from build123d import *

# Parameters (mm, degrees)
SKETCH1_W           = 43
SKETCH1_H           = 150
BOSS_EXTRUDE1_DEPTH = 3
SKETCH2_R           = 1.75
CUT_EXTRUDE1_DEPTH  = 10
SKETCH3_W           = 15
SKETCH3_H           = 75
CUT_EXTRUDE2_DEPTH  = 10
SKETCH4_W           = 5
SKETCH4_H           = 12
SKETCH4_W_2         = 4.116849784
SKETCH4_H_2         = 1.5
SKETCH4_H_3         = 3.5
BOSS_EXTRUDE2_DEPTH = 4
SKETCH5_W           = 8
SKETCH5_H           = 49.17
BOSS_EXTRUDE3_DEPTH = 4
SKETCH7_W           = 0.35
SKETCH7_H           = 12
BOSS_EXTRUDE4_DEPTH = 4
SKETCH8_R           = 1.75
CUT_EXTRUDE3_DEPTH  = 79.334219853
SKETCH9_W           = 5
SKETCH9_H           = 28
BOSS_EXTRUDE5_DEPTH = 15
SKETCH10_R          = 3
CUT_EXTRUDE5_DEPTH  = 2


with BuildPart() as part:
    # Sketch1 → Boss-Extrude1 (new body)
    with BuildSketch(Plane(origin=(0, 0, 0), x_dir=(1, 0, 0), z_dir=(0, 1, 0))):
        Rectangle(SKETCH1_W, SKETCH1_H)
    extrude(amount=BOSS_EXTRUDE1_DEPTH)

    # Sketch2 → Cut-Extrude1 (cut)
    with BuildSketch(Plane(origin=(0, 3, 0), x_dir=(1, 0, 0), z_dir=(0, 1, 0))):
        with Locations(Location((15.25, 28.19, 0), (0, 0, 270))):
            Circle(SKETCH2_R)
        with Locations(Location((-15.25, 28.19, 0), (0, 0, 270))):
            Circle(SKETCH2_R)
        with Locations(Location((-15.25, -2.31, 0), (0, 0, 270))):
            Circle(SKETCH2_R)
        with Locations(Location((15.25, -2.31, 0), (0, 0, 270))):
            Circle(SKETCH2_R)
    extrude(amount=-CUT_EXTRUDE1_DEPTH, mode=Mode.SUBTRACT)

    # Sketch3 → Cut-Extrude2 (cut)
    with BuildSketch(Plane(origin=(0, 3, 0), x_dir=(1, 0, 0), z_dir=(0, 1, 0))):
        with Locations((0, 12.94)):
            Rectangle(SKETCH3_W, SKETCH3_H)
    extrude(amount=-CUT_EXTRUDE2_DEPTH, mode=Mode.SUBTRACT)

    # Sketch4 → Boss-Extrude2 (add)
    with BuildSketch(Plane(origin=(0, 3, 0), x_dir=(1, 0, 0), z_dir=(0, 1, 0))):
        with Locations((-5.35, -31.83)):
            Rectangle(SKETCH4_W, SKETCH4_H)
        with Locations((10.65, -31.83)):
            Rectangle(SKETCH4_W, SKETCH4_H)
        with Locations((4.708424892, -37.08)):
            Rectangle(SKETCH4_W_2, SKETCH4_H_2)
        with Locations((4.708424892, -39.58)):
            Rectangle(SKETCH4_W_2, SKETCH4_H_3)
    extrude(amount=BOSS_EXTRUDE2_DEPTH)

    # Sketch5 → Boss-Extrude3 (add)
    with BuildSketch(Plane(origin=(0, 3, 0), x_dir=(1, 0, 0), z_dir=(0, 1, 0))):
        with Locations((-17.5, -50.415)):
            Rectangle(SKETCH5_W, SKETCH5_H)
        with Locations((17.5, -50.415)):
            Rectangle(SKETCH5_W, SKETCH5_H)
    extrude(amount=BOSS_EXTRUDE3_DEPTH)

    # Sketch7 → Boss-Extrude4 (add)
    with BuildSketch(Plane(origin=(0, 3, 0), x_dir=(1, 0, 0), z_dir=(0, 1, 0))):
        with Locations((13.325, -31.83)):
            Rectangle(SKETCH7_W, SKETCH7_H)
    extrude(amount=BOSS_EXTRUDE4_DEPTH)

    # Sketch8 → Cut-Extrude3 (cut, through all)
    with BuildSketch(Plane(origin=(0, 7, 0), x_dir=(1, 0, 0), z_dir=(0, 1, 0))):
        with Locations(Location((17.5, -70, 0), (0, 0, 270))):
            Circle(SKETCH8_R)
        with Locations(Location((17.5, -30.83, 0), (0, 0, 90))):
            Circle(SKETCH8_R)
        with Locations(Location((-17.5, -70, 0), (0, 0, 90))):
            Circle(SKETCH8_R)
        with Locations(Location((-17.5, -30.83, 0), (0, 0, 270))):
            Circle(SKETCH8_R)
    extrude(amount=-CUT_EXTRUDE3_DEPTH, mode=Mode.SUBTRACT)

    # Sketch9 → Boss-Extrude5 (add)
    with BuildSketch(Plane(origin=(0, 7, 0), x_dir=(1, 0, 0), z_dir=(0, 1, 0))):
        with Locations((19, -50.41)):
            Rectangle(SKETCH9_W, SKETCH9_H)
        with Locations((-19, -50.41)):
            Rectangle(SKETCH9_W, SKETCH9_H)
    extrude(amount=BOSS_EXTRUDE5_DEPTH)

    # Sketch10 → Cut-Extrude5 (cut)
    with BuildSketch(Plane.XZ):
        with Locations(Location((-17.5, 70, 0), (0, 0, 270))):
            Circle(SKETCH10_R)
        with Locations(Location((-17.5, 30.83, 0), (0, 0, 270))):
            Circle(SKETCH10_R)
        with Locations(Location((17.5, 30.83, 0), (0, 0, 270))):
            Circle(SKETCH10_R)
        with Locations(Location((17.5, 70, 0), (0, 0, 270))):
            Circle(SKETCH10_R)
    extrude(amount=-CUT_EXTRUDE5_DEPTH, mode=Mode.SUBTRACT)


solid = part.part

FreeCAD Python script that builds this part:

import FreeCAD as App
import Part
import Sketcher
from FreeCAD import Vector
Q = App.Units.Quantity

doc = App.newDocument("Part")
params = doc.addObject("Spreadsheet::Sheet", "Params")
for row, (alias, value) in enumerate([
    ("sketch1_width", "43 mm"),
    ("sketch1_height", "150 mm"),
    ("pad1_length", "3 mm"),
    ("sketch2_diameter", "3.5 mm"),
    ("pocket1_length", "10 mm"),
    ("sketch3_width", "15 mm"),
    ("sketch3_height", "75 mm"),
    ("pocket2_length", "10 mm"),
    ("sketch4_width", "5 mm"),
    ("sketch4_height", "12 mm"),
    ("pad2_length", "4 mm"),
    ("sketch5_width", "8 mm"),
    ("sketch5_height", "49.17 mm"),
    ("pad3_length", "4 mm"),
    ("sketch6_height", "12 mm"),
    ("sketch6_width", "0.35 mm"),
    ("pad4_length", "4 mm"),
    ("sketch7_diameter", "3.5 mm"),
    ("sketch8_width", "5 mm"),
    ("sketch8_height", "28 mm"),
    ("pad5_length", "15 mm"),
    ("sketch9_diameter", "6 mm"),
    ("pocket4_length", "2 mm"),
], start=1):
    params.set(f"A{row}", alias)
    params.set(f"B{row}", "=" + value)
    params.setAlias(f"B{row}", alias)

body = doc.addObject("PartDesign::Body", "Body")

# Sketch on XZ plane
sketch1 = doc.addObject("Sketcher::SketchObject", "Sketch")
body.addObject(sketch1)
sketch1.AttachmentSupport = (doc.XZ_Plane, [""])
sketch1.MapMode = "FlatFace"
sketch1.addGeometry([
    Part.LineSegment(Vector(-21.5, -75, 0), Vector(-21.5, 75, 0)),
    Part.LineSegment(Vector(-21.5, 75, 0), Vector(21.5, 75, 0)),
    Part.LineSegment(Vector(21.5, 75, 0), Vector(21.5, -75, 0)),
    Part.LineSegment(Vector(21.5, -75, 0), Vector(-21.5, -75, 0)),
], False)
sketch1.addConstraint([
    Sketcher.Constraint("Coincident", 0, 2, 1, 1),
    Sketcher.Constraint("Coincident", 1, 2, 2, 1),
    Sketcher.Constraint("Coincident", 2, 2, 3, 1),
    Sketcher.Constraint("Coincident", 3, 2, 0, 1),
    Sketcher.Constraint("Vertical", 0),
    Sketcher.Constraint("Horizontal", 1),
    Sketcher.Constraint("Vertical", 2),
    Sketcher.Constraint("Horizontal", 3),
    Sketcher.Constraint("Symmetric", 0, 2, 2, 2, -1, 1),
    Sketcher.Constraint("DistanceX", 1, 1, 1, 2, Q("43 mm")),
    Sketcher.Constraint("DistanceY", 0, 1, 0, 2, Q("150 mm")),
])
sketch1.setExpression("Constraints[9]", "Params.sketch1_width")
sketch1.setExpression("Constraints[10]", "Params.sketch1_height")
pad1 = doc.addObject("PartDesign::Pad", "Pad")
body.addObject(pad1)
pad1.Profile = sketch1
pad1.setExpression("Length", "Params.pad1_length")
pad1.Reversed = True

# Sketch on XZ plane
sketch2 = doc.addObject("Sketcher::SketchObject", "Sketch001")
body.addObject(sketch2)
sketch2.AttachmentSupport = (doc.XZ_Plane, [""])
sketch2.MapMode = "FlatFace"
sketch2.AttachmentOffset = App.Placement(Vector(0, 0, -3), App.Rotation())
sketch2.addGeometry([
    Part.Circle(Vector(15.25, -28.19, 0), Vector(0, 0, 1), 1.75),
    Part.Circle(Vector(-15.25, -28.19, 0), Vector(0, 0, 1), 1.75),
    Part.Circle(Vector(-15.25, 2.31, 0), Vector(0, 0, 1), 1.75),
    Part.Circle(Vector(15.25, 2.31, 0), Vector(0, 0, 1), 1.75),
], False)
sketch2.addConstraint([
    Sketcher.Constraint("Equal", 0, 1),
    Sketcher.Constraint("Equal", 1, 2),
    Sketcher.Constraint("Equal", 2, 3),
    Sketcher.Constraint("Symmetric", 0, 3, 1, 3, -2),
    Sketcher.Constraint("Symmetric", 2, 3, 3, 3, -2),
    Sketcher.Constraint("Vertical", 1, 3, 2, 3),
    Sketcher.Constraint("Diameter", 0, Q("3.5 mm")),
    Sketcher.Constraint("DistanceX", 1, 3, 0, 3, Q("30.5 mm")),
    Sketcher.Constraint("DistanceY", 1, 3, 2, 3, Q("30.5 mm")),
    Sketcher.Constraint("DistanceY", 0, 3, -1, 1, Q("28.19 mm")),
])
sketch2.setExpression("Constraints[6]", "Params.sketch2_diameter")
pocket1 = doc.addObject("PartDesign::Pocket", "Pocket")
body.addObject(pocket1)
pocket1.Profile = sketch2
pocket1.setExpression("Length", "Params.pocket1_length")
pocket1.Reversed = True

# Sketch on XZ plane
sketch3 = doc.addObject("Sketcher::SketchObject", "Sketch002")
body.addObject(sketch3)
sketch3.AttachmentSupport = (doc.XZ_Plane, [""])
sketch3.MapMode = "FlatFace"
sketch3.AttachmentOffset = App.Placement(Vector(0, 0, -3), App.Rotation())
sketch3.addGeometry([
    Part.LineSegment(Vector(-7.5, -50.44, 0), Vector(-7.5, 24.56, 0)),
    Part.LineSegment(Vector(-7.5, 24.56, 0), Vector(7.5, 24.56, 0)),
    Part.LineSegment(Vector(7.5, 24.56, 0), Vector(7.5, -50.44, 0)),
    Part.LineSegment(Vector(7.5, -50.44, 0), Vector(-7.5, -50.44, 0)),
], False)
sketch3.addConstraint([
    Sketcher.Constraint("Coincident", 0, 2, 1, 1),
    Sketcher.Constraint("Coincident", 1, 2, 2, 1),
    Sketcher.Constraint("Coincident", 2, 2, 3, 1),
    Sketcher.Constraint("Coincident", 3, 2, 0, 1),
    Sketcher.Constraint("Vertical", 0),
    Sketcher.Constraint("Horizontal", 1),
    Sketcher.Constraint("Vertical", 2),
    Sketcher.Constraint("Horizontal", 3),
    Sketcher.Constraint("DistanceX", 1, 1, 1, 2, Q("15 mm")),
    Sketcher.Constraint("DistanceY", 0, 1, 0, 2, Q("75 mm")),
    Sketcher.Constraint("DistanceX", 0, 2, -1, 1, Q("7.5 mm")),
    Sketcher.Constraint("DistanceY", -1, 1, 0, 2, Q("24.56 mm")),
])
sketch3.setExpression("Constraints[8]", "Params.sketch3_width")
sketch3.setExpression("Constraints[9]", "Params.sketch3_height")
pocket2 = doc.addObject("PartDesign::Pocket", "Pocket001")
body.addObject(pocket2)
pocket2.Profile = sketch3
pocket2.setExpression("Length", "Params.pocket2_length")
pocket2.Reversed = True

# Sketch on XZ plane
sketch4 = doc.addObject("Sketcher::SketchObject", "Sketch003")
body.addObject(sketch4)
sketch4.AttachmentSupport = (doc.XZ_Plane, [""])
sketch4.MapMode = "FlatFace"
sketch4.AttachmentOffset = App.Placement(Vector(0, 0, -3), App.Rotation())
sketch4.addGeometry([
    Part.LineSegment(Vector(-7.85, 25.83, 0), Vector(-7.85, 37.83, 0)),  # 0
    Part.LineSegment(Vector(-7.85, 37.83, 0), Vector(-2.85, 37.83, 0)),  # 1
    Part.LineSegment(Vector(-2.85, 37.83, 0), Vector(-2.85, 25.83, 0)),  # 2
    Part.LineSegment(Vector(-2.85, 25.83, 0), Vector(-7.85, 25.83, 0)),  # 3
    Part.LineSegment(Vector(8.15, 25.83, 0), Vector(8.15, 37.83, 0)),  # 4
    Part.LineSegment(Vector(8.15, 37.83, 0), Vector(13.15, 37.83, 0)),  # 5
    Part.LineSegment(Vector(13.15, 37.83, 0), Vector(13.15, 25.83, 0)),  # 6
    Part.LineSegment(Vector(13.15, 25.83, 0), Vector(8.15, 25.83, 0)),  # 7
    Part.LineSegment(Vector(2.65, 36.33, 0), Vector(2.65, 41.33, 0)),  # 8
    Part.LineSegment(Vector(2.65, 41.33, 0), Vector(6.76685, 41.33, 0)),  # 9
    Part.LineSegment(Vector(6.76685, 41.33, 0), Vector(6.76685, 36.33, 0)),  # 10
    Part.LineSegment(Vector(6.76685, 36.33, 0), Vector(2.65, 36.33, 0)),  # 11
], False)
sketch4.addConstraint([
    Sketcher.Constraint("Coincident", 0, 2, 1, 1),
    Sketcher.Constraint("Coincident", 1, 2, 2, 1),
    Sketcher.Constraint("Coincident", 2, 2, 3, 1),
    Sketcher.Constraint("Coincident", 3, 2, 0, 1),
    Sketcher.Constraint("Coincident", 4, 2, 5, 1),
    Sketcher.Constraint("Coincident", 5, 2, 6, 1),
    Sketcher.Constraint("Coincident", 6, 2, 7, 1),
    Sketcher.Constraint("Coincident", 7, 2, 4, 1),
    Sketcher.Constraint("Coincident", 8, 2, 9, 1),
    Sketcher.Constraint("Coincident", 9, 2, 10, 1),
    Sketcher.Constraint("Coincident", 10, 2, 11, 1),
    Sketcher.Constraint("Coincident", 11, 2, 8, 1),
    Sketcher.Constraint("Vertical", 0),
    Sketcher.Constraint("Horizontal", 1),
    Sketcher.Constraint("Vertical", 2),
    Sketcher.Constraint("Horizontal", 3),
    Sketcher.Constraint("Vertical", 4),
    Sketcher.Constraint("Horizontal", 5),
    Sketcher.Constraint("Vertical", 6),
    Sketcher.Constraint("Horizontal", 7),
    Sketcher.Constraint("Vertical", 8),
    Sketcher.Constraint("Horizontal", 9),
    Sketcher.Constraint("Vertical", 10),
    Sketcher.Constraint("Horizontal", 11),
    Sketcher.Constraint("Horizontal", 1, 2, 4, 2),
    Sketcher.Constraint("Horizontal", 3, 2, 6, 2),
    Sketcher.Constraint("Equal", 3, 5),
    Sketcher.Constraint("Equal", 7, 8),
    Sketcher.Constraint("DistanceX", 1, 1, 1, 2, Q("5 mm")),
    Sketcher.Constraint("DistanceY", 0, 1, 0, 2, Q("12 mm")),
    Sketcher.Constraint("DistanceX", 1, 2, 4, 2, Q("11 mm")),
    Sketcher.Constraint("DistanceX", 1, 2, 8, 2, Q("5.5 mm")),
    Sketcher.Constraint("DistanceY", 1, 2, 8, 2, Q("3.5 mm")),
    Sketcher.Constraint("DistanceX", 0, 2, -1, 1, Q("7.85 mm")),
    Sketcher.Constraint("DistanceY", -1, 1, 0, 2, Q("37.83 mm")),
    Sketcher.Constraint("DistanceX", 9, 1, 9, 2, Q("4.11685 mm")),
])
sketch4.setExpression("Constraints[28]", "Params.sketch4_width")
sketch4.setExpression("Constraints[29]", "Params.sketch4_height")
pad2 = doc.addObject("PartDesign::Pad", "Pad001")
body.addObject(pad2)
pad2.Profile = sketch4
pad2.setExpression("Length", "Params.pad2_length")
pad2.Reversed = True

# Sketch on XZ plane
sketch5 = doc.addObject("Sketcher::SketchObject", "Sketch004")
body.addObject(sketch5)
sketch5.AttachmentSupport = (doc.XZ_Plane, [""])
sketch5.MapMode = "FlatFace"
sketch5.AttachmentOffset = App.Placement(Vector(0, 0, -3), App.Rotation())
sketch5.addGeometry([
    Part.LineSegment(Vector(-21.5, 25.83, 0), Vector(-21.5, 75, 0)),  # 0
    Part.LineSegment(Vector(-21.5, 75, 0), Vector(-13.5, 75, 0)),  # 1
    Part.LineSegment(Vector(-13.5, 75, 0), Vector(-13.5, 25.83, 0)),  # 2
    Part.LineSegment(Vector(-13.5, 25.83, 0), Vector(-21.5, 25.83, 0)),  # 3
    Part.LineSegment(Vector(13.5, 25.83, 0), Vector(13.5, 75, 0)),  # 4
    Part.LineSegment(Vector(13.5, 75, 0), Vector(21.5, 75, 0)),  # 5
    Part.LineSegment(Vector(21.5, 75, 0), Vector(21.5, 25.83, 0)),  # 6
    Part.LineSegment(Vector(21.5, 25.83, 0), Vector(13.5, 25.83, 0)),  # 7
], False)
sketch5.addConstraint([
    Sketcher.Constraint("Coincident", 0, 2, 1, 1),
    Sketcher.Constraint("Coincident", 1, 2, 2, 1),
    Sketcher.Constraint("Coincident", 2, 2, 3, 1),
    Sketcher.Constraint("Coincident", 3, 2, 0, 1),
    Sketcher.Constraint("Coincident", 4, 2, 5, 1),
    Sketcher.Constraint("Coincident", 5, 2, 6, 1),
    Sketcher.Constraint("Coincident", 6, 2, 7, 1),
    Sketcher.Constraint("Coincident", 7, 2, 4, 1),
    Sketcher.Constraint("Vertical", 0),
    Sketcher.Constraint("Horizontal", 1),
    Sketcher.Constraint("Vertical", 2),
    Sketcher.Constraint("Horizontal", 3),
    Sketcher.Constraint("Vertical", 4),
    Sketcher.Constraint("Horizontal", 5),
    Sketcher.Constraint("Vertical", 6),
    Sketcher.Constraint("Horizontal", 7),
    Sketcher.Constraint("Symmetric", 1, 2, 4, 2, -2),
    Sketcher.Constraint("Symmetric", 3, 2, 6, 2, -2),
    Sketcher.Constraint("DistanceX", 1, 1, 1, 2, Q("8 mm")),
    Sketcher.Constraint("DistanceY", -1, 1, 0, 2, Q("75 mm")),
    Sketcher.Constraint("DistanceX", 1, 2, 4, 2, Q("27 mm")),
    Sketcher.Constraint("DistanceY", 0, 1, 0, 2, Q("49.17 mm")),
])
sketch5.setExpression("Constraints[18]", "Params.sketch5_width")
sketch5.setExpression("Constraints[21]", "Params.sketch5_height")
pad3 = doc.addObject("PartDesign::Pad", "Pad002")
body.addObject(pad3)
pad3.Profile = sketch5
pad3.setExpression("Length", "Params.pad3_length")
pad3.Reversed = True

# Sketch on XZ plane
sketch6 = doc.addObject("Sketcher::SketchObject", "Sketch005")
body.addObject(sketch6)
sketch6.AttachmentSupport = (doc.XZ_Plane, [""])
sketch6.MapMode = "FlatFace"
sketch6.AttachmentOffset = App.Placement(Vector(0, 0, -3), App.Rotation())
sketch6.addGeometry([
    Part.LineSegment(Vector(13.15, 25.83, 0), Vector(13.15, 37.83, 0)),
    Part.LineSegment(Vector(13.15, 37.83, 0), Vector(13.5, 37.83, 0)),
    Part.LineSegment(Vector(13.5, 37.83, 0), Vector(13.5, 25.83, 0)),
    Part.LineSegment(Vector(13.5, 25.83, 0), Vector(13.15, 25.83, 0)),
], False)
sketch6.addConstraint([
    Sketcher.Constraint("Coincident", 0, 2, 1, 1),
    Sketcher.Constraint("Coincident", 1, 2, 2, 1),
    Sketcher.Constraint("Coincident", 2, 2, 3, 1),
    Sketcher.Constraint("Coincident", 3, 2, 0, 1),
    Sketcher.Constraint("Vertical", 0),
    Sketcher.Constraint("Horizontal", 1),
    Sketcher.Constraint("Vertical", 2),
    Sketcher.Constraint("Horizontal", 3),
    Sketcher.Constraint("DistanceY", 0, 1, 0, 2, Q("12 mm")),
    Sketcher.Constraint("DistanceX", 1, 1, 1, 2, Q("0.35 mm")),
    Sketcher.Constraint("DistanceX", -1, 1, 1, 2, Q("13.5 mm")),
    Sketcher.Constraint("DistanceY", -1, 1, 0, 2, Q("37.83 mm")),
])
sketch6.setExpression("Constraints[8]", "Params.sketch6_height")
sketch6.setExpression("Constraints[9]", "Params.sketch6_width")
pad4 = doc.addObject("PartDesign::Pad", "Pad003")
body.addObject(pad4)
pad4.Profile = sketch6
pad4.setExpression("Length", "Params.pad4_length")
pad4.Reversed = True

# Sketch on XZ plane
sketch7 = doc.addObject("Sketcher::SketchObject", "Sketch006")
body.addObject(sketch7)
sketch7.AttachmentSupport = (doc.XZ_Plane, [""])
sketch7.MapMode = "FlatFace"
sketch7.AttachmentOffset = App.Placement(Vector(0, 0, -7), App.Rotation())
sketch7.addGeometry([
    Part.Circle(Vector(17.5, 70, 0), Vector(0, 0, 1), 1.75),
    Part.Circle(Vector(17.5, 30.83, 0), Vector(0, 0, 1), 1.75),
    Part.Circle(Vector(-17.5, 70, 0), Vector(0, 0, 1), 1.75),
    Part.Circle(Vector(-17.5, 30.83, 0), Vector(0, 0, 1), 1.75),
], False)
sketch7.addConstraint([
    Sketcher.Constraint("Equal", 0, 1),
    Sketcher.Constraint("Equal", 1, 2),
    Sketcher.Constraint("Equal", 2, 3),
    Sketcher.Constraint("Symmetric", 0, 3, 2, 3, -2),
    Sketcher.Constraint("Symmetric", 1, 3, 3, 3, -2),
    Sketcher.Constraint("Vertical", 0, 3, 1, 3),
    Sketcher.Constraint("Diameter", 0, Q("3.5 mm")),
    Sketcher.Constraint("DistanceY", -1, 1, 0, 3, Q("70 mm")),
    Sketcher.Constraint("DistanceX", 2, 3, 0, 3, Q("35 mm")),
    Sketcher.Constraint("DistanceY", -1, 1, 1, 3, Q("30.83 mm")),
])
sketch7.setExpression("Constraints[6]", "Params.sketch7_diameter")
pocket3 = doc.addObject("PartDesign::Pocket", "Pocket002")
body.addObject(pocket3)
pocket3.Profile = sketch7
pocket3.Type = "ThroughAll"
pocket3.Reversed = True

# Sketch on XZ plane
sketch8 = doc.addObject("Sketcher::SketchObject", "Sketch007")
body.addObject(sketch8)
sketch8.AttachmentSupport = (doc.XZ_Plane, [""])
sketch8.MapMode = "FlatFace"
sketch8.AttachmentOffset = App.Placement(Vector(0, 0, -7), App.Rotation())
sketch8.addGeometry([
    Part.LineSegment(Vector(16.5, 36.41, 0), Vector(16.5, 64.41, 0)),  # 0
    Part.LineSegment(Vector(16.5, 64.41, 0), Vector(21.5, 64.41, 0)),  # 1
    Part.LineSegment(Vector(21.5, 64.41, 0), Vector(21.5, 36.41, 0)),  # 2
    Part.LineSegment(Vector(21.5, 36.41, 0), Vector(16.5, 36.41, 0)),  # 3
    Part.LineSegment(Vector(-21.5, 36.41, 0), Vector(-21.5, 64.41, 0)),  # 4
    Part.LineSegment(Vector(-21.5, 64.41, 0), Vector(-16.5, 64.41, 0)),  # 5
    Part.LineSegment(Vector(-16.5, 64.41, 0), Vector(-16.5, 36.41, 0)),  # 6
    Part.LineSegment(Vector(-16.5, 36.41, 0), Vector(-21.5, 36.41, 0)),  # 7
], False)
sketch8.addConstraint([
    Sketcher.Constraint("Coincident", 0, 2, 1, 1),
    Sketcher.Constraint("Coincident", 1, 2, 2, 1),
    Sketcher.Constraint("Coincident", 2, 2, 3, 1),
    Sketcher.Constraint("Coincident", 3, 2, 0, 1),
    Sketcher.Constraint("Coincident", 4, 2, 5, 1),
    Sketcher.Constraint("Coincident", 5, 2, 6, 1),
    Sketcher.Constraint("Coincident", 6, 2, 7, 1),
    Sketcher.Constraint("Coincident", 7, 2, 4, 1),
    Sketcher.Constraint("Vertical", 0),
    Sketcher.Constraint("Horizontal", 1),
    Sketcher.Constraint("Vertical", 2),
    Sketcher.Constraint("Horizontal", 3),
    Sketcher.Constraint("Vertical", 4),
    Sketcher.Constraint("Horizontal", 5),
    Sketcher.Constraint("Vertical", 6),
    Sketcher.Constraint("Horizontal", 7),
    Sketcher.Constraint("Symmetric", 1, 2, 4, 2, -2),
    Sketcher.Constraint("Symmetric", 3, 2, 6, 2, -2),
    Sketcher.Constraint("DistanceX", 1, 1, 1, 2, Q("5 mm")),
    Sketcher.Constraint("DistanceY", 0, 1, 0, 2, Q("28 mm")),
    Sketcher.Constraint("DistanceX", 4, 2, 0, 2, Q("38 mm")),
    Sketcher.Constraint("DistanceY", -1, 1, 0, 2, Q("64.41 mm")),
])
sketch8.setExpression("Constraints[18]", "Params.sketch8_width")
sketch8.setExpression("Constraints[19]", "Params.sketch8_height")
pad5 = doc.addObject("PartDesign::Pad", "Pad004")
body.addObject(pad5)
pad5.Profile = sketch8
pad5.setExpression("Length", "Params.pad5_length")
pad5.Reversed = True

# Sketch on XZ plane
sketch9 = doc.addObject("Sketcher::SketchObject", "Sketch008")
body.addObject(sketch9)
sketch9.AttachmentSupport = (doc.XZ_Plane, [""])
sketch9.MapMode = "FlatFace"
sketch9.addGeometry([
    Part.Circle(Vector(-17.5, 70, 0), Vector(0, 0, 1), 3),
    Part.Circle(Vector(-17.5, 30.83, 0), Vector(0, 0, 1), 3),
    Part.Circle(Vector(17.5, 30.83, 0), Vector(0, 0, 1), 3),
    Part.Circle(Vector(17.5, 70, 0), Vector(0, 0, 1), 3),
], False)
sketch9.addConstraint([
    Sketcher.Constraint("Equal", 0, 1),
    Sketcher.Constraint("Equal", 1, 2),
    Sketcher.Constraint("Equal", 2, 3),
    Sketcher.Constraint("Symmetric", 1, 3, 2, 3, -2),
    Sketcher.Constraint("Symmetric", 0, 3, 3, 3, -2),
    Sketcher.Constraint("Vertical", 0, 3, 1, 3),
    Sketcher.Constraint("Diameter", 0, Q("6 mm")),
    Sketcher.Constraint("DistanceY", -1, 1, 0, 3, Q("70 mm")),
    Sketcher.Constraint("DistanceX", 1, 3, 2, 3, Q("35 mm")),
    Sketcher.Constraint("DistanceY", -1, 1, 1, 3, Q("30.83 mm")),
])
sketch9.setExpression("Constraints[6]", "Params.sketch9_diameter")
pocket4 = doc.addObject("PartDesign::Pocket", "Pocket003")
body.addObject(pocket4)
pocket4.Profile = sketch9
pocket4.setExpression("Length", "Params.pocket4_length")

doc.recompute()
